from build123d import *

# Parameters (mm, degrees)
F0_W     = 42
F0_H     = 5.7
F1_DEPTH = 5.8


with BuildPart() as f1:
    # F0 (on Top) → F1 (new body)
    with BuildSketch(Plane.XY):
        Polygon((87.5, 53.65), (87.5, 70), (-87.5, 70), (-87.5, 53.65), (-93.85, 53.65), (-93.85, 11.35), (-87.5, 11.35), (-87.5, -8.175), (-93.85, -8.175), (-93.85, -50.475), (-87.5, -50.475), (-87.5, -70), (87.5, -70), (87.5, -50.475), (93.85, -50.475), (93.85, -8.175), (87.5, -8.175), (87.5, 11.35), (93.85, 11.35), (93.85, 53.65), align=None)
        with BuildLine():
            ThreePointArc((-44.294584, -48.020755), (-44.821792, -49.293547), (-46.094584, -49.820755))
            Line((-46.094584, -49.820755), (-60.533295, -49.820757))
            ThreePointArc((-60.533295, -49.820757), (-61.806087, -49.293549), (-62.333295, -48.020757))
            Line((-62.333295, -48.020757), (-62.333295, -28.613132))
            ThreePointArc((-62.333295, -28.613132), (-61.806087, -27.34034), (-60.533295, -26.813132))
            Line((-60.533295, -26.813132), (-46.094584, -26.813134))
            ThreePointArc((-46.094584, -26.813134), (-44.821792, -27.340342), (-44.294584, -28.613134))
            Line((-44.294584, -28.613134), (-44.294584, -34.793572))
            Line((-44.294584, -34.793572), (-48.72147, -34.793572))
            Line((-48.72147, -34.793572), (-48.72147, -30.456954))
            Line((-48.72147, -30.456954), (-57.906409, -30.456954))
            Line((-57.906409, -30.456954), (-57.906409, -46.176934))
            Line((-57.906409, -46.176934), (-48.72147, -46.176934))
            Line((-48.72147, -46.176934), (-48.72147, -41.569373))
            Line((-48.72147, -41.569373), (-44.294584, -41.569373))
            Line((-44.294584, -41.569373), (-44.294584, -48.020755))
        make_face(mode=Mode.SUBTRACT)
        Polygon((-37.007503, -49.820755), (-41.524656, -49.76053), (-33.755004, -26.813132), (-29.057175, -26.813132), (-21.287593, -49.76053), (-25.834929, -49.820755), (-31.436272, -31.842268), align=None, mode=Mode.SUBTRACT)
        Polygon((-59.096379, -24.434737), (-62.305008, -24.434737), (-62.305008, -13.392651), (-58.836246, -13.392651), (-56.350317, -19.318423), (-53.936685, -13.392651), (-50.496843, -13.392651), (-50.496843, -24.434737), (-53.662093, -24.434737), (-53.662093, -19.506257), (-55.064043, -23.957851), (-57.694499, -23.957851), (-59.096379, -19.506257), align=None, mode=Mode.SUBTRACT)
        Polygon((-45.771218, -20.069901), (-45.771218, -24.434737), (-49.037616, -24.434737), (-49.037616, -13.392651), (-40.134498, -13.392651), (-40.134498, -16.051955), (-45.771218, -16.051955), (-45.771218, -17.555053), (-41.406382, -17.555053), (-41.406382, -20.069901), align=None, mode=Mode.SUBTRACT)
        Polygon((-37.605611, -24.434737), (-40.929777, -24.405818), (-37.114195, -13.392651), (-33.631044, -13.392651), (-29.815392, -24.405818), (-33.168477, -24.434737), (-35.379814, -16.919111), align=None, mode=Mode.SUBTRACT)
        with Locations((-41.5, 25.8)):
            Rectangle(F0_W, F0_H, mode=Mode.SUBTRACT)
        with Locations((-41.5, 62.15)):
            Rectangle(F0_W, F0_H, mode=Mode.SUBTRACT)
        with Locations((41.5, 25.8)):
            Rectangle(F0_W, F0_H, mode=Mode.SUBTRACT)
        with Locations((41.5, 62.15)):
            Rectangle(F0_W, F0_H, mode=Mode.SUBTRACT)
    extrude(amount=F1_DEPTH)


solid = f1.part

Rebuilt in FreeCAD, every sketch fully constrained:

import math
import FreeCAD as App
import Part
import Sketcher
Q = App.Units.Quantity


def add_polygon(sketch, points):
    """Adds a closed chain of lines whose ends are joined by coincident constraints."""
    first, n = sketch.GeometryCount, len(points)
    for a, b in zip(points, points[1:] + points[:1]):
        sketch.addGeometry(Part.LineSegment(App.Vector(*a, 0), App.Vector(*b, 0)), False)
    for i in range(n):
        sketch.addConstraint(Sketcher.Constraint("Coincident", first + i, 2, first + (i + 1) % n, 1))

doc = App.newDocument("Part")
body = doc.addObject("PartDesign::Body", "Body")

sketch1 = body.newObject("Sketcher::SketchObject", "Sketch")
sketch1.AttachmentSupport = (doc.getObject("XY_Plane"), [""])
sketch1.MapMode = "FlatFace"
add_polygon(sketch1, [(87.5, 53.6), (87.5, 70), (-87.5, 70), (-87.5, 53.6), (-93.8, 53.6), (-93.8, 11.3), (-87.5, 11.3), (-87.5, -8.2), (-93.8, -8.2), (-93.8, -50.5), (-87.5, -50.5), (-87.5, -70), (87.5, -70), (87.5, -50.5), (93.8, -50.5), (93.8, -8.2), (87.5, -8.2), (87.5, 11.3), (93.8, 11.3), (93.8, 53.6)])
sketch1.addGeometry(Part.LineSegment(App.Vector(-44.3, -41.6, 0), App.Vector(-44.3, -48, 0)), False)
sketch1.addGeometry(Part.ArcOfCircle(Part.Circle(App.Vector(-46.1, -48, 0), App.Vector(0, 0, 1), 1.8), math.radians(-90), math.radians(0)), False)
sketch1.addGeometry(Part.LineSegment(App.Vector(-46.1, -49.8, 0), App.Vector(-60.5, -49.8, 0)), False)
sketch1.addGeometry(Part.ArcOfCircle(Part.Circle(App.Vector(-60.5, -48, 0), App.Vector(0, 0, 1), 1.8), math.radians(-180), math.radians(-90)), False)
sketch1.addGeometry(Part.LineSegment(App.Vector(-62.3, -48, 0), App.Vector(-62.3, -28.6, 0)), False)
sketch1.addGeometry(Part.ArcOfCircle(Part.Circle(App.Vector(-60.5, -28.6, 0), App.Vector(0, 0, 1), 1.8), math.radians(90), math.radians(180)), False)
sketch1.addGeometry(Part.LineSegment(App.Vector(-60.5, -26.8, 0), App.Vector(-46.1, -26.8, 0)), False)
sketch1.addGeometry(Part.ArcOfCircle(Part.Circle(App.Vector(-46.1, -28.6, 0), App.Vector(0, 0, 1), 1.8), math.radians(0), math.radians(90)), False)
sketch1.addGeometry(Part.LineSegment(App.Vector(-44.3, -28.6, 0), App.Vector(-44.3, -34.8, 0)), False)
sketch1.addGeometry(Part.LineSegment(App.Vector(-44.3, -34.8, 0), App.Vector(-48.7, -34.8, 0)), False)
sketch1.addGeometry(Part.LineSegment(App.Vector(-48.7, -34.8, 0), App.Vector(-48.7, -30.5, 0)), False)
sketch1.addGeometry(Part.LineSegment(App.Vector(-48.7, -30.5, 0), App.Vector(-57.9, -30.5, 0)), False)
sketch1.addGeometry(Part.LineSegment(App.Vector(-57.9, -30.5, 0), App.Vector(-57.9, -46.2, 0)), False)
sketch1.addGeometry(Part.LineSegment(App.Vector(-57.9, -46.2, 0), App.Vector(-48.7, -46.2, 0)), False)
sketch1.addGeometry(Part.LineSegment(App.Vector(-48.7, -46.2, 0), App.Vector(-48.7, -41.6, 0)), False)
sketch1.addGeometry(Part.LineSegment(App.Vector(-48.7, -41.6, 0), App.Vector(-44.3, -41.6, 0)), False)
add_polygon(sketch1, [(-31.4, -31.8), (-37, -49.8), (-41.5, -49.8), (-33.8, -26.8), (-29.1, -26.8), (-21.3, -49.8), (-25.8, -49.8)])
add_polygon(sketch1, [(-59.1, -19.5), (-59.1, -24.4), (-62.3, -24.4), (-62.3, -13.4), (-58.8, -13.4), (-56.4, -19.3), (-53.9, -13.4), (-50.5, -13.4), (-50.5, -24.4), (-53.7, -24.4), (-53.7, -19.5), (-55.1, -24), (-57.7, -24)])
add_polygon(sketch1, [(-41.4, -20.1), (-45.8, -20.1), (-45.8, -24.4), (-49, -24.4), (-49, -13.4), (-40.1, -13.4), (-40.1, -16.1), (-45.8, -16.1), (-45.8, -17.6), (-41.4, -17.6)])
add_polygon(sketch1, [(-35.4, -16.9), (-37.6, -24.4), (-40.9, -24.4), (-37.1, -13.4), (-33.6, -13.4), (-29.8, -24.4), (-33.2, -24.4)])
add_polygon(sketch1, [(-20.5, 22.9), (-62.5, 22.9), (-62.5, 28.6), (-20.5, 28.6)])
add_polygon(sketch1, [(-20.5, 59.3), (-62.5, 59.3), (-62.5, 65), (-20.5, 65)])
add_polygon(sketch1, [(62.5, 22.9), (20.5, 22.9), (20.5, 28.6), (62.5, 28.6)])
add_polygon(sketch1, [(62.5, 59.3), (20.5, 59.3), (20.5, 65), (62.5, 65)])
sketch1.addConstraint(Sketcher.Constraint("Tangent", 20, 2, 21, 2))
sketch1.addConstraint(Sketcher.Constraint("Tangent", 21, 1, 22, 1))
sketch1.addConstraint(Sketcher.Constraint("Tangent", 22, 2, 23, 2))
sketch1.addConstraint(Sketcher.Constraint("Tangent", 23, 1, 24, 1))
sketch1.addConstraint(Sketcher.Constraint("Tangent", 24, 2, 25, 2))
sketch1.addConstraint(Sketcher.Constraint("Tangent", 25, 1, 26, 1))
sketch1.addConstraint(Sketcher.Constraint("Tangent", 26, 2, 27, 2))
sketch1.addConstraint(Sketcher.Constraint("Tangent", 27, 1, 28, 1))
sketch1.addConstraint(Sketcher.Constraint("Coincident", 28, 2, 29, 1))
sketch1.addConstraint(Sketcher.Constraint("Coincident", 29, 2, 30, 1))
sketch1.addConstraint(Sketcher.Constraint("Coincident", 30, 2, 31, 1))
sketch1.addConstraint(Sketcher.Constraint("Coincident", 31, 2, 32, 1))
sketch1.addConstraint(Sketcher.Constraint("Coincident", 32, 2, 33, 1))
sketch1.addConstraint(Sketcher.Constraint("Coincident", 33, 2, 34, 1))
sketch1.addConstraint(Sketcher.Constraint("Coincident", 34, 2, 35, 1))
sketch1.addConstraint(Sketcher.Constraint("Coincident", 35, 2, 20, 1))
sketch1.addConstraint(Sketcher.Constraint("Vertical", 0))
sketch1.addConstraint(Sketcher.Constraint("Horizontal", 1))
sketch1.addConstraint(Sketcher.Constraint("Vertical", 2))
sketch1.addConstraint(Sketcher.Constraint("Horizontal", 3))
sketch1.addConstraint(Sketcher.Constraint("Vertical", 4))
sketch1.addConstraint(Sketcher.Constraint("Horizontal", 5))
sketch1.addConstraint(Sketcher.Constraint("Vertical", 6))
sketch1.addConstraint(Sketcher.Constraint("Horizontal", 7))
sketch1.addConstraint(Sketcher.Constraint("Vertical", 8))
sketch1.addConstraint(Sketcher.Constraint("Horizontal", 9))
sketch1.addConstraint(Sketcher.Constraint("Vertical", 10))
sketch1.addConstraint(Sketcher.Constraint("Horizontal", 11))
sketch1.addConstraint(Sketcher.Constraint("Vertical", 12))
sketch1.addConstraint(Sketcher.Constraint("Horizontal", 13))
sketch1.addConstraint(Sketcher.Constraint("Vertical", 14))
sketch1.addConstraint(Sketcher.Constraint("Horizontal", 15))
sketch1.addConstraint(Sketcher.Constraint("Vertical", 16))
sketch1.addConstraint(Sketcher.Constraint("Horizontal", 17))
sketch1.addConstraint(Sketcher.Constraint("Vertical", 18))
sketch1.addConstraint(Sketcher.Constraint("Horizontal", 19))
sketch1.addConstraint(Sketcher.Constraint("Vertical", 20))
sketch1.addConstraint(Sketcher.Constraint("Vertical", 24))
sketch1.addConstraint(Sketcher.Constraint("Vertical", 28))
sketch1.addConstraint(Sketcher.Constraint("Horizontal", 29))
sketch1.addConstraint(Sketcher.Constraint("Vertical", 30))
sketch1.addConstraint(Sketcher.Constraint("Horizontal", 31))
sketch1.addConstraint(Sketcher.Constraint("Vertical", 32))
sketch1.addConstraint(Sketcher.Constraint("Horizontal", 33))
sketch1.addConstraint(Sketcher.Constraint("Vertical", 34))
sketch1.addConstraint(Sketcher.Constraint("Horizontal", 35))
sketch1.addConstraint(Sketcher.Constraint("Horizontal", 39))
sketch1.addConstraint(Sketcher.Constraint("Vertical", 43))
sketch1.addConstraint(Sketcher.Constraint("Horizontal", 44))
sketch1.addConstraint(Sketcher.Constraint("Vertical", 45))
sketch1.addConstraint(Sketcher.Constraint("Horizontal", 46))
sketch1.addConstraint(Sketcher.Constraint("Horizontal", 49))
sketch1.addConstraint(Sketcher.Constraint("Vertical", 50))
sketch1.addConstraint(Sketcher.Constraint("Horizontal", 51))
sketch1.addConstraint(Sketcher.Constraint("Vertical", 52))
sketch1.addConstraint(Sketcher.Constraint("Horizontal", 54))
sketch1.addConstraint(Sketcher.Constraint("Horizontal", 56))
sketch1.addConstraint(Sketcher.Constraint("Vertical", 57))
sketch1.addConstraint(Sketcher.Constraint("Horizontal", 58))
sketch1.addConstraint(Sketcher.Constraint("Vertical", 59))
sketch1.addConstraint(Sketcher.Constraint("Horizontal", 60))
sketch1.addConstraint(Sketcher.Constraint("Vertical", 61))
sketch1.addConstraint(Sketcher.Constraint("Horizontal", 62))
sketch1.addConstraint(Sketcher.Constraint("Vertical", 63))
sketch1.addConstraint(Sketcher.Constraint("Horizontal", 64))
sketch1.addConstraint(Sketcher.Constraint("Vertical", 65))
sketch1.addConstraint(Sketcher.Constraint("Horizontal", 69))
sketch1.addConstraint(Sketcher.Constraint("Horizontal", 73))
sketch1.addConstraint(Sketcher.Constraint("Vertical", 74))
sketch1.addConstraint(Sketcher.Constraint("Horizontal", 75))
sketch1.addConstraint(Sketcher.Constraint("Vertical", 76))
sketch1.addConstraint(Sketcher.Constraint("Horizontal", 77))
sketch1.addConstraint(Sketcher.Constraint("Vertical", 78))
sketch1.addConstraint(Sketcher.Constraint("Horizontal", 79))
sketch1.addConstraint(Sketcher.Constraint("Vertical", 80))
sketch1.addConstraint(Sketcher.Constraint("Horizontal", 81))
sketch1.addConstraint(Sketcher.Constraint("Vertical", 82))
sketch1.addConstraint(Sketcher.Constraint("Horizontal", 83))
sketch1.addConstraint(Sketcher.Constraint("Vertical", 84))
sketch1.addConstraint(Sketcher.Constraint("Horizontal", 85))
sketch1.addConstraint(Sketcher.Constraint("Vertical", 86))
sketch1.addConstraint(Sketcher.Constraint("Horizontal", 87))
sketch1.addConstraint(Sketcher.Constraint("Vertical", 88))
sketch1.addConstraint(Sketcher.Constraint("Equal", 21, 23))
sketch1.addConstraint(Sketcher.Constraint("Equal", 23, 25))
sketch1.addConstraint(Sketcher.Constraint("Equal", 25, 27))
sketch1.addConstraint(Sketcher.Constraint("Symmetric", 0, 2, 10, 2, -1, 1))
sketch1.addConstraint(Sketcher.Constraint("Symmetric", 9, 2, 12, 2, -2))
sketch1.addConstraint(Sketcher.Constraint("Symmetric", 7, 2, 14, 2, -2))
sketch1.addConstraint(Sketcher.Constraint("Symmetric", 5, 2, 16, 2, -2))
sketch1.addConstraint(Sketcher.Constraint("Symmetric", 3, 2, 18, 2, -2))
sketch1.addConstraint(Sketcher.Constraint("Symmetric", 76, 2, 81, 2, -2))
sketch1.addConstraint(Sketcher.Constraint("Symmetric", 74, 2, 83, 2, -2))
sketch1.addConstraint(Sketcher.Constraint("Symmetric", 80, 2, 85, 2, -2))
sketch1.addConstraint(Sketcher.Constraint("Symmetric", 78, 2, 87, 2, -2))
sketch1.addConstraint(Sketcher.Constraint("Parallel", 22, 26))
sketch1.addConstraint(Sketcher.Constraint("Horizontal", 25, 3, 27, 3))
sketch1.addConstraint(Sketcher.Constraint("Horizontal", 21, 1, 36, 2))
sketch1.addConstraint(Sketcher.Constraint("Horizontal", 25, 1, 38, 2))
sketch1.addConstraint(Sketcher.Constraint("Horizontal", 37, 2, 40, 2))
sketch1.addConstraint(Sketcher.Constraint("Horizontal", 36, 2, 41, 2))
sketch1.addConstraint(Sketcher.Constraint("Horizontal", 46, 2, 48, 2))
sketch1.addConstraint(Sketcher.Constraint("Horizontal", 44, 2, 50, 2))
sketch1.addConstraint(Sketcher.Constraint("Horizontal", 52, 2, 55, 2))
sketch1.addConstraint(Sketcher.Constraint("Horizontal", 51, 2, 57, 2))
sketch1.addConstraint(Sketcher.Constraint("Horizontal", 49, 2, 59, 2))
sketch1.addConstraint(Sketcher.Constraint("Horizontal", 58, 2, 66, 2))
sketch1.addConstraint(Sketcher.Constraint("Horizontal", 60, 2, 68, 2))
sketch1.addConstraint(Sketcher.Constraint("Horizontal", 67, 2, 70, 2))
sketch1.addConstraint(Sketcher.Constraint("Horizontal", 66, 2, 71, 2))
sketch1.addConstraint(Sketcher.Constraint("Vertical", 21, 3, 27, 3))
sketch1.addConstraint(Sketcher.Constraint("Vertical", 2, 2, 5, 2))
sketch1.addConstraint(Sketcher.Constraint("Vertical", 4, 2, 7, 2))
sketch1.addConstraint(Sketcher.Constraint("Vertical", 6, 2, 9, 2))
sketch1.addConstraint(Sketcher.Constraint("Vertical", 30, 2, 33, 2))
sketch1.addConstraint(Sketcher.Constraint("Vertical", 57, 2, 62, 2))
sketch1.addConstraint(Sketcher.Constraint("Vertical", 74, 2, 77, 2))
sketch1.addConstraint(Sketcher.Constraint("Vertical", 76, 2, 79, 2))
sketch1.addConstraint(Sketcher.Constraint("Equal", 4, 8))
sketch1.addConstraint(Sketcher.Constraint("Equal", 6, 10))
sketch1.addConstraint(Sketcher.Constraint("Equal", 64, 57))
sketch1.addConstraint(Sketcher.Constraint("Equal", 76, 78))
sketch1.addConstraint(Sketcher.Constraint("Radius", 21, Q("1.800001 mm")))
sketch1.addConstraint(Sketcher.Constraint("DistanceX", 1, 2, 1, 1, Q("175 mm")))
sketch1.addConstraint(Sketcher.Constraint("DistanceX", 73, 2, 73, 1, Q("42 mm")))
sketch1.addConstraint(Sketcher.Constraint("DistanceY", 4, 2, 4, 1, Q("42.3 mm")))
sketch1.addConstraint(Sketcher.Constraint("DistanceY", 74, 1, 74, 2, Q("5.7 mm")))
sketch1.addConstraint(Sketcher.Constraint("DistanceY", -1, 1, 0, 2, Q("70 mm")))
sketch1.addConstraint(Sketcher.Constraint("DistanceY", -1, 1, 78, 2, Q("65 mm")))
sketch1.addConstraint(Sketcher.Constraint("DistanceX", 3, 2, 3, 1, Q("6.35 mm")))
sketch1.addConstraint(Sketcher.Constraint("DistanceY", 0, 1, 0, 2, Q("16.35 mm")))
sketch1.addConstraint(Sketcher.Constraint("DistanceX", 73, 2, -1, 1, Q("62.5 mm")))
sketch1.addConstraint(Sketcher.Constraint("DistanceY", -1, 1, 73, 2, Q("22.95 mm")))
sketch1.addConstraint(Sketcher.Constraint("DistanceX", 58, 2, 58, 1, Q("3.266398 mm")))
sketch1.addConstraint(Sketcher.Constraint("DistanceY", 63, 2, 63, 1, Q("1.503098 mm")))
sketch1.addConstraint(Sketcher.Constraint("DistanceX", 31, 2, 31, 1, Q("9.184939 mm")))
sketch1.addConstraint(Sketcher.Constraint("DistanceX", 39, 1, 39, 2, Q("4.697829 mm")))
sketch1.addConstraint(Sketcher.Constraint("DistanceX", 44, 2, 44, 1, Q("3.208629 mm")))
sketch1.addConstraint(Sketcher.Constraint("DistanceX", 46, 1, 46, 2, Q("3.468762 mm")))
sketch1.addConstraint(Sketcher.Constraint("DistanceX", 49, 1, 49, 2, Q("3.439842 mm")))
sketch1.addConstraint(Sketcher.Constraint("DistanceX", 51, 2, 51, 1, Q("3.16525 mm")))
sketch1.addConstraint(Sketcher.Constraint("DistanceX", 62, 2, 62, 1, Q("5.63672 mm")))
sketch1.addConstraint(Sketcher.Constraint("DistanceX", 69, 1, 69, 2, Q("3.483151 mm")))
sketch1.addConstraint(Sketcher.Constraint("DistanceY", 32, 2, 32, 1, Q("15.71998 mm")))
sketch1.addConstraint(Sketcher.Constraint("DistanceY", 34, 1, 34, 2, Q("4.607561 mm")))
sketch1.addConstraint(Sketcher.Constraint("DistanceY", 43, 2, 43, 1, Q("4.92848 mm")))
sketch1.addConstraint(Sketcher.Constraint("DistanceY", 65, 2, 65, 1, Q("2.514848 mm")))
sketch1.addConstraint(Sketcher.Constraint("DistanceX", 54, 2, -1, 1, Q("57.694499 mm")))
sketch1.addConstraint(Sketcher.Constraint("DistanceY", 56, 2, -1, 1, Q("20.069901 mm")))
sketch1.addConstraint(Sketcher.Constraint("Distance", 22, Q("14.438711 mm")))
sketch1.addConstraint(Sketcher.Constraint("Distance", 36, Q("18.821918 mm")))
sketch1.addConstraint(Sketcher.Constraint("Distance", 40, Q("24.22704 mm")))
sketch1.addConstraint(Sketcher.Constraint("Distance", 47, Q("6.426089 mm")))
sketch1.addConstraint(Sketcher.Constraint("Distance", 48, Q("6.398468 mm")))
sketch1.addConstraint(Sketcher.Constraint("Distance", 66, Q("7.838291 mm")))
sketch1.addConstraint(Sketcher.Constraint("Distance", 67, Q("3.324292 mm")))
sketch1.addConstraint(Sketcher.Constraint("Distance", 70, Q("11.65543 mm")))
sketch1.addConstraint(Sketcher.Constraint("Distance", 71, Q("3.35321 mm")))
sketch1.addConstraint(Sketcher.Constraint("DistanceX", 29, 2, 29, 1, Q("4.426886 mm")))
sketch1.addConstraint(Sketcher.Constraint("DistanceX", 54, 2, 54, 1, Q("2.630456 mm")))
sketch1.addConstraint(Sketcher.Constraint("DistanceX", 56, 2, 56, 1, Q("4.364836 mm")))
sketch1.addConstraint(Sketcher.Constraint("DistanceY", 20, 2, 20, 1, Q("6.451382 mm")))
sketch1.addConstraint(Sketcher.Constraint("DistanceY", 24, 1, 24, 2, Q("19.407625 mm")))
sketch1.addConstraint(Sketcher.Constraint("DistanceY", 28, 2, 28, 1, Q("6.180438 mm")))
sketch1.addConstraint(Sketcher.Constraint("DistanceY", 45, 1, 45, 2, Q("11.042086 mm")))
sketch1.addConstraint(Sketcher.Constraint("DistanceY", 24, 2, -1, 1, Q("28.613132 mm")))
sketch1.addConstraint(Sketcher.Constraint("DistanceX", 29, 2, -1, 1, Q("48.72147 mm")))
sketch1.addConstraint(Sketcher.Constraint("DistanceY", 37, 2, -1, 1, Q("49.76053 mm")))
sketch1.addConstraint(Sketcher.Constraint("DistanceX", 41, 2, -1, 1, Q("25.834929 mm")))
sketch1.addConstraint(Sketcher.Constraint("DistanceX", 42, 2, -1, 1, Q("31.436272 mm")))
sketch1.addConstraint(Sketcher.Constraint("DistanceY", 42, 2, -1, 1, Q("31.842268 mm")))
sketch1.addConstraint(Sketcher.Constraint("DistanceX", 43, 2, -1, 1, Q("59.096379 mm")))
sketch1.addConstraint(Sketcher.Constraint("DistanceY", 53, 2, -1, 1, Q("23.957851 mm")))
sketch1.addConstraint(Sketcher.Constraint("DistanceX", 66, 2, -1, 1, Q("37.605611 mm")))
sketch1.addConstraint(Sketcher.Constraint("DistanceY", 67, 2, -1, 1, Q("24.405818 mm")))
sketch1.addConstraint(Sketcher.Constraint("DistanceX", 70, 2, -1, 1, Q("29.815392 mm")))
sketch1.addConstraint(Sketcher.Constraint("DistanceY", 72, 2, -1, 1, Q("16.919111 mm")))
sketch1.addConstraint(Sketcher.Constraint("Distance", 37, Q("4.517554 mm")))
sketch1.addConstraint(Sketcher.Constraint("Distance", 38, Q("24.227063 mm")))
sketch1.addConstraint(Sketcher.Constraint("Distance", 53, Q("4.667135 mm")))
sketch1.addConstraint(Sketcher.Constraint("DistanceX", 56, 2, -1, 1, Q("45.771218 mm")))
pad1 = body.newObject("PartDesign::Pad", "Pad")
pad1.Profile = sketch1
pad1.Length = 5.8

doc.recompute()
